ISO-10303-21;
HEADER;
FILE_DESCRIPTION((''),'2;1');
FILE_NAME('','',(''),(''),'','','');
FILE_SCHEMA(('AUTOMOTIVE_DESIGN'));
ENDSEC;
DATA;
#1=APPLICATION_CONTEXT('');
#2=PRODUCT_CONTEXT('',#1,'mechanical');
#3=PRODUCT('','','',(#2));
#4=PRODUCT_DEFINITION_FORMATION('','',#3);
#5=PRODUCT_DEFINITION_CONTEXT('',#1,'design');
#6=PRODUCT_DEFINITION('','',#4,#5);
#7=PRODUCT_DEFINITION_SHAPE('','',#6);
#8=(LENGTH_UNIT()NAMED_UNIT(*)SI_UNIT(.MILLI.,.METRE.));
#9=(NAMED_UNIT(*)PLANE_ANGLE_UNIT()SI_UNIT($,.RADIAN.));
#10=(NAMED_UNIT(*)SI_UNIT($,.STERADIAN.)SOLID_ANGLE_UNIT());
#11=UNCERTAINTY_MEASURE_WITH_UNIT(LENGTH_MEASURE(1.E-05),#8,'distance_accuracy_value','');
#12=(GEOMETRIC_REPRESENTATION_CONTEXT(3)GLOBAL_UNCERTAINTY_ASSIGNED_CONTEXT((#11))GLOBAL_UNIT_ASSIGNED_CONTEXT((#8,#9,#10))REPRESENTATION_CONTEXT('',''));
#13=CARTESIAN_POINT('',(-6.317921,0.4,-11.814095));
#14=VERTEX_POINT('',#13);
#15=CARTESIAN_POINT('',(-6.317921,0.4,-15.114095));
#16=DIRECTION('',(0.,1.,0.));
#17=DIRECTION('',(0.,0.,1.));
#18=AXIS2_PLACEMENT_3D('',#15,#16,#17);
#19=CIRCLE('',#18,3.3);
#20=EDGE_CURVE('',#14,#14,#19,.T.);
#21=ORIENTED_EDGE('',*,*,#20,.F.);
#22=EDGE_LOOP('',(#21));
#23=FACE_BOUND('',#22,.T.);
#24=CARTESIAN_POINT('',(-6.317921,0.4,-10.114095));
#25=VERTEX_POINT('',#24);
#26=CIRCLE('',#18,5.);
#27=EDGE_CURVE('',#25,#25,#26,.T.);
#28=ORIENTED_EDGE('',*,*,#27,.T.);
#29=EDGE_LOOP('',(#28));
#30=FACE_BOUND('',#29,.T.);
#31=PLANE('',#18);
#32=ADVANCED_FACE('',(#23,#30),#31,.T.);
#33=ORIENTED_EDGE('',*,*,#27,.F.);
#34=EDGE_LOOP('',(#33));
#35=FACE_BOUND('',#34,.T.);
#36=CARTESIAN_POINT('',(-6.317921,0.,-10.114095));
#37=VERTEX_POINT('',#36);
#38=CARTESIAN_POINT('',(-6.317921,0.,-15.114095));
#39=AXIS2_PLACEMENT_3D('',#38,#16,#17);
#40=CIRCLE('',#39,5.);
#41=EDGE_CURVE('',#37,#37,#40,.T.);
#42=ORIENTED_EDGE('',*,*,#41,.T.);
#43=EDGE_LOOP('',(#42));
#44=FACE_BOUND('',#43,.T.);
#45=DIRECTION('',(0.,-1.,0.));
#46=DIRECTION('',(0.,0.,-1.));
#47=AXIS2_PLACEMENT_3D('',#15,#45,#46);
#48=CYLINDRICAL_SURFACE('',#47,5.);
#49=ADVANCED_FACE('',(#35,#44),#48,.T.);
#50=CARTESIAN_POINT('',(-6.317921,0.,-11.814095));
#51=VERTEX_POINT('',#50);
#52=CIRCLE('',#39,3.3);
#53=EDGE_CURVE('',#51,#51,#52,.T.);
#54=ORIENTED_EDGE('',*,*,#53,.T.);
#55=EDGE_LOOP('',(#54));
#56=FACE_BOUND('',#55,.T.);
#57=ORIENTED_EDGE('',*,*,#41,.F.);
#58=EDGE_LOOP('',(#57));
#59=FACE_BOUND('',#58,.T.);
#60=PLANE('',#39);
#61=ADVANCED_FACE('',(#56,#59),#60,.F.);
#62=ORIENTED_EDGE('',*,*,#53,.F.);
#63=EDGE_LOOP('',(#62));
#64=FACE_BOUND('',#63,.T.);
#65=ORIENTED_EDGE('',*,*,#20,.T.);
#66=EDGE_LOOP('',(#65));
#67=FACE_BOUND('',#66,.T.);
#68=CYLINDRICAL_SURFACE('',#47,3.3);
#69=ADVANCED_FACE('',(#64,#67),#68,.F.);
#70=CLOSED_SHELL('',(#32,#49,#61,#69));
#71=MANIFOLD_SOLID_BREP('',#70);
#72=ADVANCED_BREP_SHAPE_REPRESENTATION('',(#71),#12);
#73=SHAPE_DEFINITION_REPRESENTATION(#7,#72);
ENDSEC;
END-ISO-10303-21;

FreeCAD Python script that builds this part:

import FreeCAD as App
import Part
import Sketcher

doc = App.newDocument("Part")
body = doc.addObject("PartDesign::Body", "Body")

# Sketch on XZ plane
sketch1 = body.newObject("Sketcher::SketchObject", "Sketch")
sketch1.AttachmentSupport = (doc.getObject("XZ_Plane"), [""])
sketch1.MapMode = "FlatFace"
sketch1.addGeometry([
    Part.Circle(App.Vector(-6.3, -15.1, 0), App.Vector(0, 0, 1), 5),
    Part.Circle(App.Vector(-6.3, -15.1, 0), App.Vector(0, 0, 1), 3.3),
], False)
sketch1.addConstraint([
    Sketcher.Constraint("Coincident", 1, 3, 0, 3),
    Sketcher.Constraint("Diameter", 0, 10.0),
    Sketcher.Constraint("Diameter", 1, 6.6),
    Sketcher.Constraint("DistanceX", 0, 3, -1, 1, 6.317921),
    Sketcher.Constraint("DistanceY", 0, 3, -1, 1, 15.114095),
])
pad1 = body.newObject("PartDesign::Pad", "Pad")
pad1.Profile = sketch1
pad1.Length = 0.4
pad1.Reversed = True

doc.recompute()
